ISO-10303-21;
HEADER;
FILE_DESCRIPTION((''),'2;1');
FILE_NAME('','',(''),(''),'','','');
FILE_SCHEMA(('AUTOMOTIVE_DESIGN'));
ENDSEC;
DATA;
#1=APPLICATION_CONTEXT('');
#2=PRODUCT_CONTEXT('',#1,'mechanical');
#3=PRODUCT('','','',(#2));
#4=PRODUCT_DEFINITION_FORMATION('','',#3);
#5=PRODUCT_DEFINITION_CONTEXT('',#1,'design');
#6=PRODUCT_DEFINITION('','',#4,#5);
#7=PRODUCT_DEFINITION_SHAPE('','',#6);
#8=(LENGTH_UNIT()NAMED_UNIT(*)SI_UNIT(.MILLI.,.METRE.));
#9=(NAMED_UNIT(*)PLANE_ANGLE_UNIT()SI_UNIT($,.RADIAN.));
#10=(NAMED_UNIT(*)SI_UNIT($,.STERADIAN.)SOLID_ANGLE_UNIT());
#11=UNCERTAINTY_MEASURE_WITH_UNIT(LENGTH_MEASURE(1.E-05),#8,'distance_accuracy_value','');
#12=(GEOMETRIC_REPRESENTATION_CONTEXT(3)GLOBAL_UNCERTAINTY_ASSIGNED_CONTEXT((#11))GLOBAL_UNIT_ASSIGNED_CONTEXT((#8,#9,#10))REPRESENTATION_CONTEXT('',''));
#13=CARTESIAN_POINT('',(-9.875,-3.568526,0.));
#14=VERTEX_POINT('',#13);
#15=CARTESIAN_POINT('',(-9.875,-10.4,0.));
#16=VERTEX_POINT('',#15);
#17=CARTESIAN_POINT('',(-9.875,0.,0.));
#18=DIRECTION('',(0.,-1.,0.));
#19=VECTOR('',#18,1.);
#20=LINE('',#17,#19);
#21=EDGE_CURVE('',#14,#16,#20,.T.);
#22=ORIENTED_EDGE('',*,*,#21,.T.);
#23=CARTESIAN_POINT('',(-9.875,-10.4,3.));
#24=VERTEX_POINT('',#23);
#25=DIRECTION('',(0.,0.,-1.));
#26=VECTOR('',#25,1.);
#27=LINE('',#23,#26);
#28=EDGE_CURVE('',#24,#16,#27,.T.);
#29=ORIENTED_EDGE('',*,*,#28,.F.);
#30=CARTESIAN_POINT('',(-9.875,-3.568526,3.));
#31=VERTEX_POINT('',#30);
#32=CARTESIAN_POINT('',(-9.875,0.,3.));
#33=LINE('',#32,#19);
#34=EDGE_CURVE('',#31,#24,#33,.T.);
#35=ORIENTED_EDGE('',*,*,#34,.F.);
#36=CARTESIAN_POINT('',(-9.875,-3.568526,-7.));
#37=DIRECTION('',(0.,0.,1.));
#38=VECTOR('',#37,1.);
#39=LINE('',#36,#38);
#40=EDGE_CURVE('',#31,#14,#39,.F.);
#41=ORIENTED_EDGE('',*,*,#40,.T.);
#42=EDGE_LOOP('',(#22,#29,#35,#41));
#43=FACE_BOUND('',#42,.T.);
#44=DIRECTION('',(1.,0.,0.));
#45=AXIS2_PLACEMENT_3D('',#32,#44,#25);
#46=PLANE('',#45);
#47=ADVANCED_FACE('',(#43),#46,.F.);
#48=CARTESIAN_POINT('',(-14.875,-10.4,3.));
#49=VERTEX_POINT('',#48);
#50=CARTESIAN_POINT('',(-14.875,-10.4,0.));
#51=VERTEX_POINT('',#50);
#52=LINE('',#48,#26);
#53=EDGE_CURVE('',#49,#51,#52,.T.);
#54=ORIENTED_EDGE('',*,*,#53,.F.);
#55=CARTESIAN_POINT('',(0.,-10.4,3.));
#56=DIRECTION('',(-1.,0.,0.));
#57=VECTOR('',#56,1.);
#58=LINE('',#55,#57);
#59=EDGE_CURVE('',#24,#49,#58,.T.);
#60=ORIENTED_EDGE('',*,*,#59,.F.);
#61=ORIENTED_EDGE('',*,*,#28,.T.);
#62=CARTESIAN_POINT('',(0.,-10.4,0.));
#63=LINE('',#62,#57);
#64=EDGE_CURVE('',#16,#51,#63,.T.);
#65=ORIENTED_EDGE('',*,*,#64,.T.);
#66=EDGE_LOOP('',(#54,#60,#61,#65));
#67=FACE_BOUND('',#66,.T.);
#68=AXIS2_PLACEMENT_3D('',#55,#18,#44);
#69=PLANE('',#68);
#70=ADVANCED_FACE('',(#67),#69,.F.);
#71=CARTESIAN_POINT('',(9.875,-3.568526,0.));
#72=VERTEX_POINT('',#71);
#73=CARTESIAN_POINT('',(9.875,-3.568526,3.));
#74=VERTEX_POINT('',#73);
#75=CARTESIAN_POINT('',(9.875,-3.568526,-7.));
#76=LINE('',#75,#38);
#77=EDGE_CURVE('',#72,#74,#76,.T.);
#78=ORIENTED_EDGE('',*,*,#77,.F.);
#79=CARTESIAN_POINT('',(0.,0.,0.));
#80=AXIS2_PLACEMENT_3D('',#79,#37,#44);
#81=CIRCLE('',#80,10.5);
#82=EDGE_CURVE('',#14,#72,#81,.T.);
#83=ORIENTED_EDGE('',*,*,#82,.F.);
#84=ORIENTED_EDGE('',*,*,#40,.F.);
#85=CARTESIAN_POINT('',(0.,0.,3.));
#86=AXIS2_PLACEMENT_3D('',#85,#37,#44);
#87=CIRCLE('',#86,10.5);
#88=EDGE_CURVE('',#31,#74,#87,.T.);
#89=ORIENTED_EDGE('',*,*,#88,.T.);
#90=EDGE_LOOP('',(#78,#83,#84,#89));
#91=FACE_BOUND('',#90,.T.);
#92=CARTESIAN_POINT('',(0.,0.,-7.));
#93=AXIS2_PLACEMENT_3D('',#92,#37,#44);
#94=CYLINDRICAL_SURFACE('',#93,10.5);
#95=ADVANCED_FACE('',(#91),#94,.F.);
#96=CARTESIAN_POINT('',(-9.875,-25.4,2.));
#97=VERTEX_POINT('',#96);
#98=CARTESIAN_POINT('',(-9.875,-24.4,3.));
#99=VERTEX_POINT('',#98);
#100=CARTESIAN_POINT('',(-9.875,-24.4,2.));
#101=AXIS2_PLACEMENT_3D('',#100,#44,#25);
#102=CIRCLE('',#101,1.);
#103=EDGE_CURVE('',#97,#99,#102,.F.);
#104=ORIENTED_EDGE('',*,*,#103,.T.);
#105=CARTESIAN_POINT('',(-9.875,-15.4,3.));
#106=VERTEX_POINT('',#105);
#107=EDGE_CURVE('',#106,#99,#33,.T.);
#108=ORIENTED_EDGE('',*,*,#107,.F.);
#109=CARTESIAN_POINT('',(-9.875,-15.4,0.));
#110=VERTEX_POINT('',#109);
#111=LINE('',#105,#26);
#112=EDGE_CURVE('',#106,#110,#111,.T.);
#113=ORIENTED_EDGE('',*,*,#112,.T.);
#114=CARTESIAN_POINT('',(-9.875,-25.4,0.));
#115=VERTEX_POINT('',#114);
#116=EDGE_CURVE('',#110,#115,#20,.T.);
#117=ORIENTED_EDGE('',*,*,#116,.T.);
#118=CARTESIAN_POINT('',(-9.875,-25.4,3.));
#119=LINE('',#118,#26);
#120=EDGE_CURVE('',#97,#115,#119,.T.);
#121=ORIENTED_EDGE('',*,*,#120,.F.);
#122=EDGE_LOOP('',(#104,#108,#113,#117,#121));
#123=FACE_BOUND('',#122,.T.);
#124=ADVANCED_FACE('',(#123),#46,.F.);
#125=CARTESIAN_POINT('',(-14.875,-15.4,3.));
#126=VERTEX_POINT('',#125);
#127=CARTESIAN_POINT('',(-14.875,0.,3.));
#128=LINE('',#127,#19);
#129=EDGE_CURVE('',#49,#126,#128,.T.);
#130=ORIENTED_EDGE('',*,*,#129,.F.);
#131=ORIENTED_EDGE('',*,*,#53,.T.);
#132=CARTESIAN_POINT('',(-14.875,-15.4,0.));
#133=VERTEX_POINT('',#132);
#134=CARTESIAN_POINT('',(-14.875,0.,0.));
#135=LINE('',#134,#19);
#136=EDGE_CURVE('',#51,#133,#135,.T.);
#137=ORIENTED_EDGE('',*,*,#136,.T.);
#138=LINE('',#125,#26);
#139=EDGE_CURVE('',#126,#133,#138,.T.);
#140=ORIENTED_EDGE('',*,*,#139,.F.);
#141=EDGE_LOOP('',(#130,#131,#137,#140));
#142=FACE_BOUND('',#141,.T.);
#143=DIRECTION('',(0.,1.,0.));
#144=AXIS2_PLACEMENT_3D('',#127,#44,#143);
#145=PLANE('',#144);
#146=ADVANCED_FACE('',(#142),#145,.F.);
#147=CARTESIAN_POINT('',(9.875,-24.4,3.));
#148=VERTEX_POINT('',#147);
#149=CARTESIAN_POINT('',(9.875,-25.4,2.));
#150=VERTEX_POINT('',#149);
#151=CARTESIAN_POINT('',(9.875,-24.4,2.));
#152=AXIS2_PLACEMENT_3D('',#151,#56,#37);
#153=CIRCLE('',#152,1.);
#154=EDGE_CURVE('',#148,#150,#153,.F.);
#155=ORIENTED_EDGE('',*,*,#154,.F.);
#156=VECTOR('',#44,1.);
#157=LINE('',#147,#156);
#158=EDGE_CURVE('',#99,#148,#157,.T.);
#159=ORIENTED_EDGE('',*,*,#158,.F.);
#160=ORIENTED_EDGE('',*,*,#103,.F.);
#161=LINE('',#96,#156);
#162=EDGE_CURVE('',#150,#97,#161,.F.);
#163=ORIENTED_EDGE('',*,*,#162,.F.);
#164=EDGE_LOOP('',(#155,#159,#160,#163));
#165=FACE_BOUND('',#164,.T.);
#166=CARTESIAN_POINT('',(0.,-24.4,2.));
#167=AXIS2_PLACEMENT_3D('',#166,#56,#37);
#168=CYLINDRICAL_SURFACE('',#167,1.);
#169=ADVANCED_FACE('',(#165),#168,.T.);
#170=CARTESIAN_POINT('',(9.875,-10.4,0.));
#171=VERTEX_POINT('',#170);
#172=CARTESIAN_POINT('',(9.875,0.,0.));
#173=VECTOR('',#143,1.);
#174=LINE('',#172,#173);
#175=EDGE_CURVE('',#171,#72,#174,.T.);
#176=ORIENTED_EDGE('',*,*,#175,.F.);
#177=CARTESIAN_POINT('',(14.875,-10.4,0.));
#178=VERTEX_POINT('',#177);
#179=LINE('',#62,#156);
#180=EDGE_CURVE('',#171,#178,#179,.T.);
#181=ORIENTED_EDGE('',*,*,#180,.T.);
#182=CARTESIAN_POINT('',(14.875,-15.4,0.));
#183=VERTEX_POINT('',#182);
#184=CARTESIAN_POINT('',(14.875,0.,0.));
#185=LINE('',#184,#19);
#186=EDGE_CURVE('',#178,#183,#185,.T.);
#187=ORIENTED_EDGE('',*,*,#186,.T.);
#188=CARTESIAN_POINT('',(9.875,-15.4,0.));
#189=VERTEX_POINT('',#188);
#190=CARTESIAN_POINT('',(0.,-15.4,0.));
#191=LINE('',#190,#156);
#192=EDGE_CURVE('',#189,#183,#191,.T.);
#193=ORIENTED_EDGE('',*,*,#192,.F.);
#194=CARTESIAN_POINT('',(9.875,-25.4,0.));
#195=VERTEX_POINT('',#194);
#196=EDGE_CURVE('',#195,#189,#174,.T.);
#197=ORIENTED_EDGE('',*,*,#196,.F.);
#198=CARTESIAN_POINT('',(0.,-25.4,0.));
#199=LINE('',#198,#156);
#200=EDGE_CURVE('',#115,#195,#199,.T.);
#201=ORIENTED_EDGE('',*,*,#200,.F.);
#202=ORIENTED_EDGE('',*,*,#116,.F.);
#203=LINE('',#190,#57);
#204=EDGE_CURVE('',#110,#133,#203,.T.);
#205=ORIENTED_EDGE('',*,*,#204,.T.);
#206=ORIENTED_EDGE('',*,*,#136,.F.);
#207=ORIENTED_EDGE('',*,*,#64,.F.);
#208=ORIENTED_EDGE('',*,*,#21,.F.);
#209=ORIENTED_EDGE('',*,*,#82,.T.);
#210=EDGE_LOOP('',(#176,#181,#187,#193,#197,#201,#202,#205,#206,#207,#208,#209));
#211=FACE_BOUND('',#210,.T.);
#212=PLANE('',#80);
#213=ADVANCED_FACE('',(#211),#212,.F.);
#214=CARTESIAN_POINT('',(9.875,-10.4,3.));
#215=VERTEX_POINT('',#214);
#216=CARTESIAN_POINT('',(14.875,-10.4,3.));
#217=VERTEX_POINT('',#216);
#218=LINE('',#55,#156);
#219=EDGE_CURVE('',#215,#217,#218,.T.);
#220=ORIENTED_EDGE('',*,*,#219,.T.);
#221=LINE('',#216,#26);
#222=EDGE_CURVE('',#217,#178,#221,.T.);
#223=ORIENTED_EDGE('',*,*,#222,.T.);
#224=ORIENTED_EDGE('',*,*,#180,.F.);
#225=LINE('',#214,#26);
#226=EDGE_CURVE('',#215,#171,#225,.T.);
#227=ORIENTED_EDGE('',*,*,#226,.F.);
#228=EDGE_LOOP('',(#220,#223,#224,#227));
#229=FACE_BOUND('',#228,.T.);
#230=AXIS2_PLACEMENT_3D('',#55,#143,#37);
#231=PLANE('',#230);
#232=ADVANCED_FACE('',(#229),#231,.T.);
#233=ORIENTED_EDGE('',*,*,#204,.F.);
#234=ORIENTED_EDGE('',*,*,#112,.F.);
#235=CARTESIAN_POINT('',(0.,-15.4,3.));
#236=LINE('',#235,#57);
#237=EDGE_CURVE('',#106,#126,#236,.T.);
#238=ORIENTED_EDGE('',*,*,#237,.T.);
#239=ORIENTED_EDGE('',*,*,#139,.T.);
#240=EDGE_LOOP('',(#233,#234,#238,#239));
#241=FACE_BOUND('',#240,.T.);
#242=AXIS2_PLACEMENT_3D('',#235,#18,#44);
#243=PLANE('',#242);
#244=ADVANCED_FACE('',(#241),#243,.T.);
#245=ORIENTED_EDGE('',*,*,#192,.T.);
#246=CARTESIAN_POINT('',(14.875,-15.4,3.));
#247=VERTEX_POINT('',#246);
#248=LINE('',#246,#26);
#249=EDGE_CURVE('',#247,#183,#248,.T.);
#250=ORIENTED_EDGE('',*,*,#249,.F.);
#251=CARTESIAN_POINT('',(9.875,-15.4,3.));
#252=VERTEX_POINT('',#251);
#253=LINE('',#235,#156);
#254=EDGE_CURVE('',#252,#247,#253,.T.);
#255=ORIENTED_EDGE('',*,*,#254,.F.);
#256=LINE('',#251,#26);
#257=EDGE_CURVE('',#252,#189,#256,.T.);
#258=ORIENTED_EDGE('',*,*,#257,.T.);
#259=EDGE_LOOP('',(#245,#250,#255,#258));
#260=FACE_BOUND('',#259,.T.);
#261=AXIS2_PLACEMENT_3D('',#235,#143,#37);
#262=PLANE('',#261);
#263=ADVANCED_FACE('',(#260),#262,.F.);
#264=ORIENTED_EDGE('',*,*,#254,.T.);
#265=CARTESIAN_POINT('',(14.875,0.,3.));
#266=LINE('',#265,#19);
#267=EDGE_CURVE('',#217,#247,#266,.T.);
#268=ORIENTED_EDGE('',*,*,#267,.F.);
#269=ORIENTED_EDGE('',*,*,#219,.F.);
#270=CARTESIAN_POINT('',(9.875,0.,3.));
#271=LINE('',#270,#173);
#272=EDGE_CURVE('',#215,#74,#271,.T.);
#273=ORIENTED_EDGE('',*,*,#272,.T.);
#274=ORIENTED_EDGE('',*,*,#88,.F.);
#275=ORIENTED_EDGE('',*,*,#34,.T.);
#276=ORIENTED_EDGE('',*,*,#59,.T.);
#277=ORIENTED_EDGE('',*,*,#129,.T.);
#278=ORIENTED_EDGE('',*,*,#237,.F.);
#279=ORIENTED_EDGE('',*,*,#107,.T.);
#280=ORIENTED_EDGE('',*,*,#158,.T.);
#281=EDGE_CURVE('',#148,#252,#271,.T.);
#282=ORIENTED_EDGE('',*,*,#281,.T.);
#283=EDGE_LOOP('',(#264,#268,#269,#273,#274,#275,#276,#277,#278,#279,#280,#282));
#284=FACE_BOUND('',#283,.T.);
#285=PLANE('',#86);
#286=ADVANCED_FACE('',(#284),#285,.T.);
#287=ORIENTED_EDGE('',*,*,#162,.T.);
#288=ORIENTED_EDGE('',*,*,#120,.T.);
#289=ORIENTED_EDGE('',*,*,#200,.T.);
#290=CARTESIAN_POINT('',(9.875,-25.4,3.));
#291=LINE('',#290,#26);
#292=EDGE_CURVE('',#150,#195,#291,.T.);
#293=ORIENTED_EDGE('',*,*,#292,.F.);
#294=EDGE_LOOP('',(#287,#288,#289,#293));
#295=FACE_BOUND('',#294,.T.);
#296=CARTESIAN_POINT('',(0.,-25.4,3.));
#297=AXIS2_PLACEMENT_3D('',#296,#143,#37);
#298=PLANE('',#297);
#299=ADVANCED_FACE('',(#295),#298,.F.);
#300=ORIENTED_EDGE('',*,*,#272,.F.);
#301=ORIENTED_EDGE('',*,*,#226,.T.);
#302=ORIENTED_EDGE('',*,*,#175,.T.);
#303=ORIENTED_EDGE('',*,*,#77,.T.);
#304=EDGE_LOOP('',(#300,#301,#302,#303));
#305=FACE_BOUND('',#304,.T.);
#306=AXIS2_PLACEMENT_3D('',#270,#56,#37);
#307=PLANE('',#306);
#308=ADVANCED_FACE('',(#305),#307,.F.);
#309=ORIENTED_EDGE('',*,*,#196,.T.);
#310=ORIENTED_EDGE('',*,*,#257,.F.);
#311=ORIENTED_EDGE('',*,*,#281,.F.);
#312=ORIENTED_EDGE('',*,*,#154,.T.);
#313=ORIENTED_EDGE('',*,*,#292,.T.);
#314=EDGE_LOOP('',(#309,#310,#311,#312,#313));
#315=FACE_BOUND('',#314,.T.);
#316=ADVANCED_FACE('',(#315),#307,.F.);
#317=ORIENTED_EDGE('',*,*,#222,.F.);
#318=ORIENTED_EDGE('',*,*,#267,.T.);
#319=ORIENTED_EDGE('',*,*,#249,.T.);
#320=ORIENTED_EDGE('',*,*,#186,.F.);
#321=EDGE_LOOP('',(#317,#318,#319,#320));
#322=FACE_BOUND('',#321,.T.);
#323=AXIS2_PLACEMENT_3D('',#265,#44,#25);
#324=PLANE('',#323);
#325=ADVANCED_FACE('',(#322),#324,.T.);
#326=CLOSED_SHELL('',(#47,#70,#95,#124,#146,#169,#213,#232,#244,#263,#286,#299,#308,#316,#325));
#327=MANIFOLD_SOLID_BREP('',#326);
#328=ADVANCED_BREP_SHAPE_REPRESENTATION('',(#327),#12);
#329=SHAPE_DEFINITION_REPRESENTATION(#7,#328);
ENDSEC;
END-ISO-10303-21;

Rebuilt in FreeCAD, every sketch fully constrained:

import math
import FreeCAD as App
import Part
import Sketcher

V = App.Vector


def edges_at(feature, points):
    """Names of the edges that pass closest to the given points."""
    edges = feature.Shape.Edges
    near = lambda p: min(range(len(edges)), key=lambda i: edges[i].distToShape(Part.Vertex(*p))[0])
    return sorted({f"Edge{near(p) + 1}" for p in points})

doc = App.newDocument("Part")
body = doc.addObject("PartDesign::Body", "Body")

# Sketch on XY plane
sketch1 = body.newObject("Sketcher::SketchObject", "Sketch")
sketch1.AttachmentSupport = (doc.getObject("XY_Plane"), [""])
sketch1.MapMode = "FlatFace"
sketch1.addGeometry([
    Part.ArcOfCircle(Part.Circle(V(0, 0, 0), V(0, 0, 1), 9.875), math.radians(0), math.radians(180)),  # 0
    Part.LineSegment(V(-9.875, 0, 0), V(-9.875, -10.4, 0)),  # 1
    Part.LineSegment(V(-9.875, -10.4, 0), V(-14.875, -10.4, 0)),  # 2
    Part.LineSegment(V(-14.875, -10.4, 0), V(-14.875, -15.4, 0)),  # 3
    Part.LineSegment(V(-14.875, -15.4, 0), V(-9.875, -15.4, 0)),  # 4
    Part.LineSegment(V(-9.875, -15.4, 0), V(-9.875, -25.4, 0)),  # 5
    Part.LineSegment(V(-9.875, -25.4, 0), V(9.875, -25.4, 0)),  # 6
    Part.LineSegment(V(9.875, -25.4, 0), V(9.875, -15.4, 0)),  # 7
    Part.LineSegment(V(9.875, -15.4, 0), V(14.875, -15.4, 0)),  # 8
    Part.LineSegment(V(14.875, -15.4, 0), V(14.875, -10.4, 0)),  # 9
    Part.LineSegment(V(14.875, -10.4, 0), V(9.875, -10.4, 0)),  # 10
    Part.LineSegment(V(9.875, -10.4, 0), V(9.875, 0, 0)),  # 11
], False)
sketch1.addConstraint([
    Sketcher.Constraint("Tangent", 0, 2, 1, 1),
    Sketcher.Constraint("Coincident", 1, 2, 2, 1),
    Sketcher.Constraint("Coincident", 2, 2, 3, 1),
    Sketcher.Constraint("Coincident", 3, 2, 4, 1),
    Sketcher.Constraint("Coincident", 4, 2, 5, 1),
    Sketcher.Constraint("Coincident", 5, 2, 6, 1),
    Sketcher.Constraint("Coincident", 6, 2, 7, 1),
    Sketcher.Constraint("Coincident", 7, 2, 8, 1),
    Sketcher.Constraint("Coincident", 8, 2, 9, 1),
    Sketcher.Constraint("Coincident", 9, 2, 10, 1),
    Sketcher.Constraint("Coincident", 10, 2, 11, 1),
    Sketcher.Constraint("Tangent", 11, 2, 0, 1),
    Sketcher.Constraint("Vertical", 1),
    Sketcher.Constraint("Horizontal", 2),
    Sketcher.Constraint("Vertical", 3),
    Sketcher.Constraint("Horizontal", 4),
    Sketcher.Constraint("Vertical", 5),
    Sketcher.Constraint("Horizontal", 6),
    Sketcher.Constraint("Vertical", 7),
    Sketcher.Constraint("Horizontal", 8),
    Sketcher.Constraint("Vertical", 9),
    Sketcher.Constraint("Horizontal", 10),
    Sketcher.Constraint("Vertical", 11),
    Sketcher.Constraint("Coincident", 0, 3, -1, 1),
    Sketcher.Constraint("Symmetric", 4, 2, 7, 2, -2),
    Sketcher.Constraint("Symmetric", 2, 2, 9, 2, -2),
    Sketcher.Constraint("Vertical", 1, 2, 4, 2),
    Sketcher.Constraint("Equal", 10, 3),
    Sketcher.Constraint("DistanceX", 2, 2, 2, 1, 5.0),
    Sketcher.Constraint("DistanceY", 5, 2, 5, 1, 10.0),
    Sketcher.Constraint("DistanceY", 1, 2, 1, 1, 10.4),
    Sketcher.Constraint("Radius", 0, 9.875),
])
pad1 = body.newObject("PartDesign::Pad", "Pad")
pad1.Profile = sketch1
pad1.Length = 3
doc.recompute()

fillet = body.newObject("PartDesign::Fillet", "Fillet")
fillet.Base = (pad1, edges_at(pad1, [(0, -25.4, 3)]))
fillet.Radius = 1

# Sketch on XY plane
sketch2 = body.newObject("Sketcher::SketchObject", "Sketch001")
sketch2.AttachmentSupport = (doc.getObject("XY_Plane"), [""])
sketch2.MapMode = "FlatFace"
sketch2.AttachmentOffset = App.Placement(V(0, 0, 3), App.Rotation())
sketch2.addGeometry(Part.Circle(V(0, 0, 0), V(0, 0, 1), 10.5), False)
sketch2.addConstraint([
    Sketcher.Constraint("Coincident", 0, 3, -1, 1),
    Sketcher.Constraint("Diameter", 0, 21.0),
])
pocket1 = body.newObject("PartDesign::Pocket", "Pocket")
pocket1.Profile = sketch2
pocket1.Length = 10

doc.recompute()
